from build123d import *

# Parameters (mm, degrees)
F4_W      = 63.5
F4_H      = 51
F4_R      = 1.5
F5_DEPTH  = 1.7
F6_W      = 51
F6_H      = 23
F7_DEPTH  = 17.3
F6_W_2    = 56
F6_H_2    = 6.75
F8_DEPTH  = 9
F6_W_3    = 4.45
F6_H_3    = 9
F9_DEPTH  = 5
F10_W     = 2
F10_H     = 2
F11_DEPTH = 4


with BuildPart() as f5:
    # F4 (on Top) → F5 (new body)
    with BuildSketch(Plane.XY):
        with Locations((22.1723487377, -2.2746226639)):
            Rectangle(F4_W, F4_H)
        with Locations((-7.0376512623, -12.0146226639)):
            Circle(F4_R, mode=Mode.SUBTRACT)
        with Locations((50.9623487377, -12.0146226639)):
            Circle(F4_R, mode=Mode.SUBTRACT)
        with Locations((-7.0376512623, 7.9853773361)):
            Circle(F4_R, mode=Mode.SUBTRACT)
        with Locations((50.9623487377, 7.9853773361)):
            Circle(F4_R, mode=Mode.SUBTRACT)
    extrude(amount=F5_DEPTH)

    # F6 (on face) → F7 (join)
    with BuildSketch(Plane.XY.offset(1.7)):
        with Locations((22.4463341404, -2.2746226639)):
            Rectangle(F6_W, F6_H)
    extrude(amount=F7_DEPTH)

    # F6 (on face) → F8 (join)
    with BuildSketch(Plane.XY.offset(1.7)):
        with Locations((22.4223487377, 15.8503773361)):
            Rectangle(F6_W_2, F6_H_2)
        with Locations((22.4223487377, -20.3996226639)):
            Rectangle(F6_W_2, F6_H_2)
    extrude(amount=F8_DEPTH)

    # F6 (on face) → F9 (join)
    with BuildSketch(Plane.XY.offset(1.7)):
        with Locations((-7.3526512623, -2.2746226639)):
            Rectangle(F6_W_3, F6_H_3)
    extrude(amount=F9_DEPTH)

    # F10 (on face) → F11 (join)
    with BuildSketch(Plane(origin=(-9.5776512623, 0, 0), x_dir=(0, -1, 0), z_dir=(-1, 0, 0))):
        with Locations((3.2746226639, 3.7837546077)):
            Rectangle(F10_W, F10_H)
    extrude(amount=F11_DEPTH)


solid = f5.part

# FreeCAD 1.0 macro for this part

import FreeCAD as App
import Part
import Sketcher
from FreeCAD import Vector


def add_polygon(sketch, points):
    """Adds a closed chain of lines whose ends are joined by coincident constraints."""
    first, n = sketch.GeometryCount, len(points)
    for a, b in zip(points, points[1:] + points[:1]):
        sketch.addGeometry(Part.LineSegment(App.Vector(*a, 0), App.Vector(*b, 0)), False)
    for i in range(n):
        sketch.addConstraint(Sketcher.Constraint("Coincident", first + i, 2, first + (i + 1) % n, 1))

doc = App.newDocument("Part")
params = doc.addObject("Spreadsheet::Sheet", "Params")
for row, (alias, value) in enumerate([
    ("sketch1_diameter", "3 mm"),
    ("sketch1_height", "51 mm"),
    ("sketch1_width", "63.5 mm"),
    ("pad1_length", "1.7 mm"),
    ("sketch2_width", "51 mm"),
    ("sketch2_height", "23 mm"),
    ("pad2_length", "17.3 mm"),
    ("sketch3_width", "56 mm"),
    ("sketch3_height", "6.75 mm"),
    ("pad3_length", "9 mm"),
    ("sketch4_height", "9 mm"),
    ("sketch4_width", "4.45 mm"),
    ("pad4_length", "5 mm"),
    ("sketch5_width", "2 mm"),
    ("pad5_length", "4 mm"),
], start=1):
    params.set(f"A{row}", alias)
    params.set(f"B{row}", "=" + value)
    params.setAlias(f"B{row}", alias)

body = doc.addObject("PartDesign::Body", "Body")

# Sketch on XY plane
sketch1 = body.newObject("Sketcher::SketchObject", "Sketch")
sketch1.AttachmentSupport = (doc.getObject("XY_Plane"), [""])
sketch1.MapMode = "FlatFace"
add_polygon(sketch1, [(-9.6, 23.2), (-9.6, -27.8), (53.9, -27.8), (53.9, 23.2)])  # lines 0-3
sketch1.addGeometry(Part.Circle(Vector(-7, -12, 0), Vector(0, 0, 1), 1.5), False)  # 4
sketch1.addGeometry(Part.Circle(Vector(51, -12, 0), Vector(0, 0, 1), 1.5), False)  # 5
sketch1.addGeometry(Part.Circle(Vector(-7, 8, 0), Vector(0, 0, 1), 1.5), False)  # 6
sketch1.addGeometry(Part.Circle(Vector(51, 8, 0), Vector(0, 0, 1), 1.5), False)  # 7
sketch1.addConstraint(Sketcher.Constraint("Vertical", 0))
sketch1.addConstraint(Sketcher.Constraint("Horizontal", 1))
sketch1.addConstraint(Sketcher.Constraint("Vertical", 2))
sketch1.addConstraint(Sketcher.Constraint("Horizontal", 3))
sketch1.addConstraint(Sketcher.Constraint("Equal", 4, 5))
sketch1.addConstraint(Sketcher.Constraint("Equal", 5, 6))
sketch1.addConstraint(Sketcher.Constraint("Equal", 6, 7))
sketch1.addConstraint(Sketcher.Constraint("Horizontal", 4, 3, 5, 3))
sketch1.addConstraint(Sketcher.Constraint("Horizontal", 6, 3, 7, 3))
sketch1.addConstraint(Sketcher.Constraint("Vertical", 4, 3, 6, 3))
sketch1.addConstraint(Sketcher.Constraint("Vertical", 5, 3, 7, 3))
sketch1.addConstraint(Sketcher.Constraint("Diameter", 4, 3.0))
sketch1.addConstraint(Sketcher.Constraint("DistanceY", 0, 2, 0, 1, 51.0))
sketch1.addConstraint(Sketcher.Constraint("DistanceX", 1, 1, 1, 2, 63.5))
sketch1.addConstraint(Sketcher.Constraint("DistanceX", 4, 3, 5, 3, 58.0))
sketch1.addConstraint(Sketcher.Constraint("DistanceY", 4, 3, 6, 3, 20.0))
sketch1.addConstraint(Sketcher.Constraint("DistanceX", 0, 2, 4, 3, 2.54))
sketch1.addConstraint(Sketcher.Constraint("DistanceY", 0, 2, 4, 3, 15.76))
sketch1.addConstraint(Sketcher.Constraint("DistanceX", 4, 3, -1, 1, 7.037651))
sketch1.addConstraint(Sketcher.Constraint("DistanceY", 4, 3, -1, 1, 12.014623))
sketch1.setExpression("Constraints[15]", "Params.sketch1_diameter")
sketch1.setExpression("Constraints[16]", "Params.sketch1_height")
sketch1.setExpression("Constraints[17]", "Params.sketch1_width")
pad1 = body.newObject("PartDesign::Pad", "Pad")
pad1.Profile = sketch1
pad1.setExpression("Length", "Params.pad1_length")

# Sketch on XY plane
sketch2 = body.newObject("Sketcher::SketchObject", "Sketch001")
sketch2.AttachmentSupport = (doc.getObject("XY_Plane"), [""])
sketch2.MapMode = "FlatFace"
sketch2.AttachmentOffset = App.Placement(Vector(0, 0, 1.7), App.Rotation())
add_polygon(sketch2, [(-3, 9), (-3, -14), (48, -14), (48, 9)])  # lines 0-3
sketch2.addConstraint(Sketcher.Constraint("Vertical", 0))
sketch2.addConstraint(Sketcher.Constraint("Horizontal", 1))
sketch2.addConstraint(Sketcher.Constraint("Vertical", 2))
sketch2.addConstraint(Sketcher.Constraint("Horizontal", 3))
sketch2.addConstraint(Sketcher.Constraint("DistanceX", 1, 1, 1, 2, 51.0))
sketch2.addConstraint(Sketcher.Constraint("DistanceY", 0, 2, 0, 1, 23.0))
sketch2.addConstraint(Sketcher.Constraint("DistanceX", 0, 2, -1, 1, 3.053666))
sketch2.addConstraint(Sketcher.Constraint("DistanceY", 0, 2, -1, 1, 13.774623))
sketch2.setExpression("Constraints[8]", "Params.sketch2_width")
sketch2.setExpression("Constraints[9]", "Params.sketch2_height")
pad2 = body.newObject("PartDesign::Pad", "Pad001")
pad2.Profile = sketch2
pad2.setExpression("Length", "Params.pad2_length")

# Sketch on XY plane
sketch3 = body.newObject("Sketcher::SketchObject", "Sketch002")
sketch3.AttachmentSupport = (doc.getObject("XY_Plane"), [""])
sketch3.MapMode = "FlatFace"
sketch3.AttachmentOffset = App.Placement(Vector(0, 0, 1.7), App.Rotation())
add_polygon(sketch3, [(-6, 19), (-6, 12), (50, 12), (50, 19)])  # lines 0-3
add_polygon(sketch3, [(-6, -17), (-6, -24), (50, -24), (50, -17)])  # lines 4-7
sketch3.addConstraint(Sketcher.Constraint("Vertical", 0))
sketch3.addConstraint(Sketcher.Constraint("Horizontal", 1))
sketch3.addConstraint(Sketcher.Constraint("Vertical", 2))
sketch3.addConstraint(Sketcher.Constraint("Horizontal", 3))
sketch3.addConstraint(Sketcher.Constraint("Vertical", 4))
sketch3.addConstraint(Sketcher.Constraint("Horizontal", 5))
sketch3.addConstraint(Sketcher.Constraint("Vertical", 6))
sketch3.addConstraint(Sketcher.Constraint("Horizontal", 7))
sketch3.addConstraint(Sketcher.Constraint("Vertical", 3, 2, 4, 2))
sketch3.addConstraint(Sketcher.Constraint("Vertical", 2, 2, 5, 2))
sketch3.addConstraint(Sketcher.Constraint("Equal", 2, 4))
sketch3.addConstraint(Sketcher.Constraint("DistanceX", 1, 1, 1, 2, 56.0))
sketch3.addConstraint(Sketcher.Constraint("DistanceY", 4, 2, 3, 2, 43.0))
sketch3.addConstraint(Sketcher.Constraint("DistanceY", 0, 2, 0, 1, 6.75))
sketch3.addConstraint(Sketcher.Constraint("DistanceX", 0, 2, -1, 1, 5.577651))
sketch3.addConstraint(Sketcher.Constraint("DistanceY", -1, 1, 0, 2, 12.475377))
sketch3.setExpression("Constraints[19]", "Params.sketch3_width")
sketch3.setExpression("Constraints[21]", "Params.sketch3_height")
pad3 = body.newObject("PartDesign::Pad", "Pad002")
pad3.Profile = sketch3
pad3.setExpression("Length", "Params.pad3_length")

# Sketch on XY plane
sketch4 = body.newObject("Sketcher::SketchObject", "Sketch003")
sketch4.AttachmentSupport = (doc.getObject("XY_Plane"), [""])
sketch4.MapMode = "FlatFace"
sketch4.AttachmentOffset = App.Placement(Vector(0, 0, 1.7), App.Rotation())
add_polygon(sketch4, [(-9.6, 2.2), (-9.6, -6.8), (-5.1, -6.8), (-5.1, 2.2)])  # lines 0-3
sketch4.addConstraint(Sketcher.Constraint("Vertical", 0))
sketch4.addConstraint(Sketcher.Constraint("Horizontal", 1))
sketch4.addConstraint(Sketcher.Constraint("Vertical", 2))
sketch4.addConstraint(Sketcher.Constraint("Horizontal", 3))
sketch4.addConstraint(Sketcher.Constraint("DistanceY", 0, 2, 0, 1, 9.0))
sketch4.addConstraint(Sketcher.Constraint("DistanceX", 1, 1, 1, 2, 4.45))
sketch4.addConstraint(Sketcher.Constraint("DistanceX", 0, 2, -1, 1, 9.577651))
sketch4.addConstraint(Sketcher.Constraint("DistanceY", 0, 2, -1, 1, 6.774623))
sketch4.setExpression("Constraints[8]", "Params.sketch4_height")
sketch4.setExpression("Constraints[9]", "Params.sketch4_width")
pad4 = body.newObject("PartDesign::Pad", "Pad003")
pad4.Profile = sketch4
pad4.setExpression("Length", "Params.pad4_length")

# Sketch on YZ plane
sketch5 = body.newObject("Sketcher::SketchObject", "Sketch004")
sketch5.AttachmentSupport = (doc.getObject("YZ_Plane"), [""])
sketch5.MapMode = "FlatFace"
sketch5.AttachmentOffset = App.Placement(Vector(0, 0, -9.577651), App.Rotation())
add_polygon(sketch5, [(-2.3, 4.8), (-2.3, 2.8), (-4.3, 2.8), (-4.3, 4.8)])  # lines 0-3
sketch5.addConstraint(Sketcher.Constraint("Vertical", 0))
sketch5.addConstraint(Sketcher.Constraint("Horizontal", 1))
sketch5.addConstraint(Sketcher.Constraint("Vertical", 2))
sketch5.addConstraint(Sketcher.Constraint("Horizontal", 3))
sketch5.addConstraint(Sketcher.Constraint("Equal", 3, 0))
sketch5.addConstraint(Sketcher.Constraint("DistanceX", 1, 2, 1, 1, 2.0))
sketch5.addConstraint(Sketcher.Constraint("DistanceX", 0, 2, -1, 1, 2.274623))
sketch5.addConstraint(Sketcher.Constraint("DistanceY", -1, 1, 0, 2, 2.783755))
sketch5.setExpression("Constraints[9]", "Params.sketch5_width")
pad5 = body.newObject("PartDesign::Pad", "Pad004")
pad5.Profile = sketch5
pad5.setExpression("Length", "Params.pad5_length")
pad5.Reversed = True

doc.recompute()
